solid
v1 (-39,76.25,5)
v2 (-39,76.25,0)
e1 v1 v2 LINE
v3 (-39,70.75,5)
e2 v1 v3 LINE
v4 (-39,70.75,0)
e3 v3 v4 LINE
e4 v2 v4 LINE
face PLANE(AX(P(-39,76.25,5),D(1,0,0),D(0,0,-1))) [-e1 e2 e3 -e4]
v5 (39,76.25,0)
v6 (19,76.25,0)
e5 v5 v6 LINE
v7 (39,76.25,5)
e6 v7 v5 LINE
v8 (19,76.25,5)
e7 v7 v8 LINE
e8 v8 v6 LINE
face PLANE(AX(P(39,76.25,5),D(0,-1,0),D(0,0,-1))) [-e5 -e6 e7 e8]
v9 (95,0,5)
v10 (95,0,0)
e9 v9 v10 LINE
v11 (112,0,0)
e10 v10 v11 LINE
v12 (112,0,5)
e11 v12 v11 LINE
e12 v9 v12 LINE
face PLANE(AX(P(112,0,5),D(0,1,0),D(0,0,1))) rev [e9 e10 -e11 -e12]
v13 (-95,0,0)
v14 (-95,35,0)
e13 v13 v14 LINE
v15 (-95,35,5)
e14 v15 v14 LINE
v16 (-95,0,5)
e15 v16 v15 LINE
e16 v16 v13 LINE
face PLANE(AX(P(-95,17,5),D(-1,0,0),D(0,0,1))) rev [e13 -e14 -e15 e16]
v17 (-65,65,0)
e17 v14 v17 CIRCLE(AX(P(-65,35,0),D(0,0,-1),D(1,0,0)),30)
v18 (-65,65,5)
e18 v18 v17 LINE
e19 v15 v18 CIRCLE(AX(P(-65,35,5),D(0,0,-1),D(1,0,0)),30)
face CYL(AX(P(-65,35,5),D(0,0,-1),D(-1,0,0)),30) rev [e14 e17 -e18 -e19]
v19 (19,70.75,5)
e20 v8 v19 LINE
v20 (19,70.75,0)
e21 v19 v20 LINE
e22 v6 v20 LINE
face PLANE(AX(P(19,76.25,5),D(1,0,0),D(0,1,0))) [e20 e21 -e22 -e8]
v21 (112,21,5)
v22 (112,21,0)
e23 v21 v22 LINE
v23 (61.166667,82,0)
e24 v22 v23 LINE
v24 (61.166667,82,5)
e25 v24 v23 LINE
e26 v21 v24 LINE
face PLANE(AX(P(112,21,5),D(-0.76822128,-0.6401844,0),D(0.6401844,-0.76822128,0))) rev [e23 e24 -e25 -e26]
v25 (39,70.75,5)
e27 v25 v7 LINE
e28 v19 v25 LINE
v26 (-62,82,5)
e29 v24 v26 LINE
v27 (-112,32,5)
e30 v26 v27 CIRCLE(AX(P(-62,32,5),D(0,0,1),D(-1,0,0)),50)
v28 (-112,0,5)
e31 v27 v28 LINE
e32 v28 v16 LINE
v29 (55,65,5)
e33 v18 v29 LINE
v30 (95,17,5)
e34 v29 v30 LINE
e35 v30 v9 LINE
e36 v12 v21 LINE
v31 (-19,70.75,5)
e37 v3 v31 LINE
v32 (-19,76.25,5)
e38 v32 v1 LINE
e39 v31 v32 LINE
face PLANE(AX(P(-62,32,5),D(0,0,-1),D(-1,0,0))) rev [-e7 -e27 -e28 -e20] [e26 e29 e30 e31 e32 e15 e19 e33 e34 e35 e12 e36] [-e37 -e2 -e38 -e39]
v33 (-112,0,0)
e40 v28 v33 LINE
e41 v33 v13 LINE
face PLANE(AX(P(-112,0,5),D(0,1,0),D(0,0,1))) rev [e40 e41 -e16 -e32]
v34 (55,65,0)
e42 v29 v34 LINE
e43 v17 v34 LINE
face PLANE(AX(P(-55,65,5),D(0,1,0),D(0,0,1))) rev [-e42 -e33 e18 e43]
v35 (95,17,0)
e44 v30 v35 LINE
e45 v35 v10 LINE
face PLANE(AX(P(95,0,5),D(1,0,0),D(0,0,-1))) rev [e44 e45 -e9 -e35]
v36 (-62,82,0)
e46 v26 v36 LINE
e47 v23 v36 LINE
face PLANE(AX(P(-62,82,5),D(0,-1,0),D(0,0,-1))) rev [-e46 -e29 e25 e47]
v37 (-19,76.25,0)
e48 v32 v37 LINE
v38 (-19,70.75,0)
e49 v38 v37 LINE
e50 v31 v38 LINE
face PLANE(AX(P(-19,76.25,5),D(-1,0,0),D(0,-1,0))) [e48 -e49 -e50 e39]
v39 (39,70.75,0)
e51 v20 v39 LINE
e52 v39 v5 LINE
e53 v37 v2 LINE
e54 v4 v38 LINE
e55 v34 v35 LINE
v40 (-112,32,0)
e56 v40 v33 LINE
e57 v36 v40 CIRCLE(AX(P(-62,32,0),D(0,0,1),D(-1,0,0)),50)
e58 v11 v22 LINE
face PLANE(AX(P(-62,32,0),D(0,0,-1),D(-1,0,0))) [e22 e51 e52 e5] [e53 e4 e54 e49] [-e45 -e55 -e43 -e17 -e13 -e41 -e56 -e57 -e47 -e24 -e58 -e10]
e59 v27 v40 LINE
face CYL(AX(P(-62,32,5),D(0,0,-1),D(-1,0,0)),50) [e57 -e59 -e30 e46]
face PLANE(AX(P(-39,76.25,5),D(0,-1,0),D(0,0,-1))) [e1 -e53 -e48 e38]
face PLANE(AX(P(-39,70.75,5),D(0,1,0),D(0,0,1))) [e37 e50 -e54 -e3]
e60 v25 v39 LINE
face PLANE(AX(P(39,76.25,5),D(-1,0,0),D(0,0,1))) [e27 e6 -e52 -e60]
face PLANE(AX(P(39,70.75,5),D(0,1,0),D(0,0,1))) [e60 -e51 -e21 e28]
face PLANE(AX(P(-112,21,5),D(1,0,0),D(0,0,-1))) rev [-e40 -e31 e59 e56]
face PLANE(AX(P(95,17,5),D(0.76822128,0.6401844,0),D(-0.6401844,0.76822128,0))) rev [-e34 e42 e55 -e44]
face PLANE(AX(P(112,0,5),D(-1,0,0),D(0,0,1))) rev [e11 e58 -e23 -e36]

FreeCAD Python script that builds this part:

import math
import FreeCAD as App
import Part
import Sketcher
Q = App.Units.Quantity


def add_polygon(sketch, points):
    """Adds a closed chain of lines whose ends are joined by coincident constraints."""
    first, n = sketch.GeometryCount, len(points)
    for a, b in zip(points, points[1:] + points[:1]):
        sketch.addGeometry(Part.LineSegment(App.Vector(*a, 0), App.Vector(*b, 0)), False)
    for i in range(n):
        sketch.addConstraint(Sketcher.Constraint("Coincident", first + i, 2, first + (i + 1) % n, 1))

doc = App.newDocument("Part")
params = doc.addObject("Spreadsheet::Sheet", "Params")
for row, (alias, value) in enumerate([
    ("sketch1_radius", "30 mm"),
    ("sketch1_radius2", "50 mm"),
    ("sketch1_width", "17 mm"),
    ("sketch1_width2", "120 mm"),
    ("sketch1_width3", "20 mm"),
    ("pad1_length", "5 mm"),
], start=1):
    params.set(f"A{row}", alias)
    params.set(f"B{row}", "=" + value)
    params.setAlias(f"B{row}", alias)

body = doc.addObject("PartDesign::Body", "Body")

# Sketch on XY plane
sketch1 = doc.addObject("Sketcher::SketchObject", "Sketch")
body.addObject(sketch1)
sketch1.AttachmentSupport = (doc.XY_Plane, [""])
sketch1.MapMode = "FlatFace"
sketch1.addGeometry(Part.LineSegment(App.Vector(-112, 0, 0), App.Vector(-95, 0, 0)), False)  # 0
sketch1.addGeometry(Part.LineSegment(App.Vector(-95, 0, 0), App.Vector(-95, 35, 0)), False)  # 1
sketch1.addGeometry(Part.ArcOfCircle(Part.Circle(App.Vector(-65, 35, 0), App.Vector(0, 0, 1), 30), math.radians(90), math.radians(180)), False)  # 2
sketch1.addGeometry(Part.LineSegment(App.Vector(-65, 65, 0), App.Vector(55, 65, 0)), False)  # 3
sketch1.addGeometry(Part.LineSegment(App.Vector(55, 65, 0), App.Vector(95, 17, 0)), False)  # 4
sketch1.addGeometry(Part.LineSegment(App.Vector(95, 17, 0), App.Vector(95, 0, 0)), False)  # 5
sketch1.addGeometry(Part.LineSegment(App.Vector(95, 0, 0), App.Vector(112, 0, 0)), False)  # 6
sketch1.addGeometry(Part.LineSegment(App.Vector(112, 0, 0), App.Vector(112, 21, 0)), False)  # 7
sketch1.addGeometry(Part.LineSegment(App.Vector(112, 21, 0), App.Vector(61, 82, 0)), False)  # 8
sketch1.addGeometry(Part.LineSegment(App.Vector(61, 82, 0), App.Vector(-62, 82, 0)), False)  # 9
sketch1.addGeometry(Part.ArcOfCircle(Part.Circle(App.Vector(-62, 32, 0), App.Vector(0, 0, 1), 50), math.radians(90), math.radians(180)), False)  # 10
sketch1.addGeometry(Part.LineSegment(App.Vector(-112, 32, 0), App.Vector(-112, 0, 0)), False)  # 11
add_polygon(sketch1, [(-19, 71), (-39, 71), (-39, 76), (-19, 76)])  # lines 12-15
add_polygon(sketch1, [(39, 71), (19, 71), (19, 76), (39, 76)])  # lines 16-19
sketch1.addConstraint([
    Sketcher.Constraint("Coincident", 0, 2, 1, 1),
    Sketcher.Constraint("Tangent", 1, 2, 2, 2),
    Sketcher.Constraint("Tangent", 2, 1, 3, 1),
    Sketcher.Constraint("Coincident", 3, 2, 4, 1),
    Sketcher.Constraint("Coincident", 4, 2, 5, 1),
    Sketcher.Constraint("Coincident", 5, 2, 6, 1),
    Sketcher.Constraint("Coincident", 6, 2, 7, 1),
    Sketcher.Constraint("Coincident", 7, 2, 8, 1),
    Sketcher.Constraint("Coincident", 8, 2, 9, 1),
    Sketcher.Constraint("Tangent", 9, 2, 10, 1),
    Sketcher.Constraint("Tangent", 10, 2, 11, 1),
    Sketcher.Constraint("Coincident", 11, 2, 0, 1),
    Sketcher.Constraint("Horizontal", 0),
    Sketcher.Constraint("Vertical", 1),
    Sketcher.Constraint("Horizontal", 3),
    Sketcher.Constraint("Vertical", 5),
    Sketcher.Constraint("Horizontal", 6),
    Sketcher.Constraint("Vertical", 7),
    Sketcher.Constraint("Horizontal", 9),
    Sketcher.Constraint("Vertical", 11),
    Sketcher.Constraint("Horizontal", 12),
    Sketcher.Constraint("Vertical", 13),
    Sketcher.Constraint("Horizontal", 14),
    Sketcher.Constraint("Vertical", 15),
    Sketcher.Constraint("Horizontal", 16),
    Sketcher.Constraint("Vertical", 17),
    Sketcher.Constraint("Horizontal", 18),
    Sketcher.Constraint("Vertical", 19),
    Sketcher.Constraint("Symmetric", 0, 2, 5, 2, -1, 1),
    Sketcher.Constraint("Symmetric", 6, 2, 11, 2, -2),
    Sketcher.Constraint("Symmetric", 15, 2, 16, 2, -2),
    Sketcher.Constraint("Symmetric", 13, 2, 18, 2, -2),
    Sketcher.Constraint("Parallel", 4, 8),
    Sketcher.Constraint("Equal", 6, 5),
    Sketcher.Constraint("Radius", 2, Q("30 mm")),
    Sketcher.Constraint("Radius", 10, Q("50 mm")),
    Sketcher.Constraint("DistanceX", 0, 1, 0, 2, Q("17 mm")),
    Sketcher.Constraint("DistanceX", 3, 1, 3, 2, Q("120 mm")),
    Sketcher.Constraint("DistanceX", 12, 2, 12, 1, Q("20 mm")),
    Sketcher.Constraint("DistanceY", 1, 1, 1, 2, Q("35 mm")),
    Sketcher.Constraint("DistanceY", 7, 1, 7, 2, Q("21 mm")),
    Sketcher.Constraint("DistanceY", 11, 2, 11, 1, Q("32 mm")),
    Sketcher.Constraint("DistanceY", 13, 1, 13, 2, Q("5.5 mm")),
    Sketcher.Constraint("DistanceX", 2, 3, -1, 1, Q("65 mm")),
    Sketcher.Constraint("DistanceX", 12, 2, -1, 1, Q("39 mm")),
    Sketcher.Constraint("DistanceY", -1, 1, 12, 2, Q("70.75 mm")),
])
sketch1.setExpression("Constraints[42]", "Params.sketch1_radius")
sketch1.setExpression("Constraints[43]", "Params.sketch1_radius2")
sketch1.setExpression("Constraints[44]", "Params.sketch1_width")
sketch1.setExpression("Constraints[45]", "Params.sketch1_width2")
sketch1.setExpression("Constraints[46]", "Params.sketch1_width3")
pad1 = doc.addObject("PartDesign::Pad", "Pad")
body.addObject(pad1)
pad1.Profile = sketch1
pad1.setExpression("Length", "Params.pad1_length")

doc.recompute()
